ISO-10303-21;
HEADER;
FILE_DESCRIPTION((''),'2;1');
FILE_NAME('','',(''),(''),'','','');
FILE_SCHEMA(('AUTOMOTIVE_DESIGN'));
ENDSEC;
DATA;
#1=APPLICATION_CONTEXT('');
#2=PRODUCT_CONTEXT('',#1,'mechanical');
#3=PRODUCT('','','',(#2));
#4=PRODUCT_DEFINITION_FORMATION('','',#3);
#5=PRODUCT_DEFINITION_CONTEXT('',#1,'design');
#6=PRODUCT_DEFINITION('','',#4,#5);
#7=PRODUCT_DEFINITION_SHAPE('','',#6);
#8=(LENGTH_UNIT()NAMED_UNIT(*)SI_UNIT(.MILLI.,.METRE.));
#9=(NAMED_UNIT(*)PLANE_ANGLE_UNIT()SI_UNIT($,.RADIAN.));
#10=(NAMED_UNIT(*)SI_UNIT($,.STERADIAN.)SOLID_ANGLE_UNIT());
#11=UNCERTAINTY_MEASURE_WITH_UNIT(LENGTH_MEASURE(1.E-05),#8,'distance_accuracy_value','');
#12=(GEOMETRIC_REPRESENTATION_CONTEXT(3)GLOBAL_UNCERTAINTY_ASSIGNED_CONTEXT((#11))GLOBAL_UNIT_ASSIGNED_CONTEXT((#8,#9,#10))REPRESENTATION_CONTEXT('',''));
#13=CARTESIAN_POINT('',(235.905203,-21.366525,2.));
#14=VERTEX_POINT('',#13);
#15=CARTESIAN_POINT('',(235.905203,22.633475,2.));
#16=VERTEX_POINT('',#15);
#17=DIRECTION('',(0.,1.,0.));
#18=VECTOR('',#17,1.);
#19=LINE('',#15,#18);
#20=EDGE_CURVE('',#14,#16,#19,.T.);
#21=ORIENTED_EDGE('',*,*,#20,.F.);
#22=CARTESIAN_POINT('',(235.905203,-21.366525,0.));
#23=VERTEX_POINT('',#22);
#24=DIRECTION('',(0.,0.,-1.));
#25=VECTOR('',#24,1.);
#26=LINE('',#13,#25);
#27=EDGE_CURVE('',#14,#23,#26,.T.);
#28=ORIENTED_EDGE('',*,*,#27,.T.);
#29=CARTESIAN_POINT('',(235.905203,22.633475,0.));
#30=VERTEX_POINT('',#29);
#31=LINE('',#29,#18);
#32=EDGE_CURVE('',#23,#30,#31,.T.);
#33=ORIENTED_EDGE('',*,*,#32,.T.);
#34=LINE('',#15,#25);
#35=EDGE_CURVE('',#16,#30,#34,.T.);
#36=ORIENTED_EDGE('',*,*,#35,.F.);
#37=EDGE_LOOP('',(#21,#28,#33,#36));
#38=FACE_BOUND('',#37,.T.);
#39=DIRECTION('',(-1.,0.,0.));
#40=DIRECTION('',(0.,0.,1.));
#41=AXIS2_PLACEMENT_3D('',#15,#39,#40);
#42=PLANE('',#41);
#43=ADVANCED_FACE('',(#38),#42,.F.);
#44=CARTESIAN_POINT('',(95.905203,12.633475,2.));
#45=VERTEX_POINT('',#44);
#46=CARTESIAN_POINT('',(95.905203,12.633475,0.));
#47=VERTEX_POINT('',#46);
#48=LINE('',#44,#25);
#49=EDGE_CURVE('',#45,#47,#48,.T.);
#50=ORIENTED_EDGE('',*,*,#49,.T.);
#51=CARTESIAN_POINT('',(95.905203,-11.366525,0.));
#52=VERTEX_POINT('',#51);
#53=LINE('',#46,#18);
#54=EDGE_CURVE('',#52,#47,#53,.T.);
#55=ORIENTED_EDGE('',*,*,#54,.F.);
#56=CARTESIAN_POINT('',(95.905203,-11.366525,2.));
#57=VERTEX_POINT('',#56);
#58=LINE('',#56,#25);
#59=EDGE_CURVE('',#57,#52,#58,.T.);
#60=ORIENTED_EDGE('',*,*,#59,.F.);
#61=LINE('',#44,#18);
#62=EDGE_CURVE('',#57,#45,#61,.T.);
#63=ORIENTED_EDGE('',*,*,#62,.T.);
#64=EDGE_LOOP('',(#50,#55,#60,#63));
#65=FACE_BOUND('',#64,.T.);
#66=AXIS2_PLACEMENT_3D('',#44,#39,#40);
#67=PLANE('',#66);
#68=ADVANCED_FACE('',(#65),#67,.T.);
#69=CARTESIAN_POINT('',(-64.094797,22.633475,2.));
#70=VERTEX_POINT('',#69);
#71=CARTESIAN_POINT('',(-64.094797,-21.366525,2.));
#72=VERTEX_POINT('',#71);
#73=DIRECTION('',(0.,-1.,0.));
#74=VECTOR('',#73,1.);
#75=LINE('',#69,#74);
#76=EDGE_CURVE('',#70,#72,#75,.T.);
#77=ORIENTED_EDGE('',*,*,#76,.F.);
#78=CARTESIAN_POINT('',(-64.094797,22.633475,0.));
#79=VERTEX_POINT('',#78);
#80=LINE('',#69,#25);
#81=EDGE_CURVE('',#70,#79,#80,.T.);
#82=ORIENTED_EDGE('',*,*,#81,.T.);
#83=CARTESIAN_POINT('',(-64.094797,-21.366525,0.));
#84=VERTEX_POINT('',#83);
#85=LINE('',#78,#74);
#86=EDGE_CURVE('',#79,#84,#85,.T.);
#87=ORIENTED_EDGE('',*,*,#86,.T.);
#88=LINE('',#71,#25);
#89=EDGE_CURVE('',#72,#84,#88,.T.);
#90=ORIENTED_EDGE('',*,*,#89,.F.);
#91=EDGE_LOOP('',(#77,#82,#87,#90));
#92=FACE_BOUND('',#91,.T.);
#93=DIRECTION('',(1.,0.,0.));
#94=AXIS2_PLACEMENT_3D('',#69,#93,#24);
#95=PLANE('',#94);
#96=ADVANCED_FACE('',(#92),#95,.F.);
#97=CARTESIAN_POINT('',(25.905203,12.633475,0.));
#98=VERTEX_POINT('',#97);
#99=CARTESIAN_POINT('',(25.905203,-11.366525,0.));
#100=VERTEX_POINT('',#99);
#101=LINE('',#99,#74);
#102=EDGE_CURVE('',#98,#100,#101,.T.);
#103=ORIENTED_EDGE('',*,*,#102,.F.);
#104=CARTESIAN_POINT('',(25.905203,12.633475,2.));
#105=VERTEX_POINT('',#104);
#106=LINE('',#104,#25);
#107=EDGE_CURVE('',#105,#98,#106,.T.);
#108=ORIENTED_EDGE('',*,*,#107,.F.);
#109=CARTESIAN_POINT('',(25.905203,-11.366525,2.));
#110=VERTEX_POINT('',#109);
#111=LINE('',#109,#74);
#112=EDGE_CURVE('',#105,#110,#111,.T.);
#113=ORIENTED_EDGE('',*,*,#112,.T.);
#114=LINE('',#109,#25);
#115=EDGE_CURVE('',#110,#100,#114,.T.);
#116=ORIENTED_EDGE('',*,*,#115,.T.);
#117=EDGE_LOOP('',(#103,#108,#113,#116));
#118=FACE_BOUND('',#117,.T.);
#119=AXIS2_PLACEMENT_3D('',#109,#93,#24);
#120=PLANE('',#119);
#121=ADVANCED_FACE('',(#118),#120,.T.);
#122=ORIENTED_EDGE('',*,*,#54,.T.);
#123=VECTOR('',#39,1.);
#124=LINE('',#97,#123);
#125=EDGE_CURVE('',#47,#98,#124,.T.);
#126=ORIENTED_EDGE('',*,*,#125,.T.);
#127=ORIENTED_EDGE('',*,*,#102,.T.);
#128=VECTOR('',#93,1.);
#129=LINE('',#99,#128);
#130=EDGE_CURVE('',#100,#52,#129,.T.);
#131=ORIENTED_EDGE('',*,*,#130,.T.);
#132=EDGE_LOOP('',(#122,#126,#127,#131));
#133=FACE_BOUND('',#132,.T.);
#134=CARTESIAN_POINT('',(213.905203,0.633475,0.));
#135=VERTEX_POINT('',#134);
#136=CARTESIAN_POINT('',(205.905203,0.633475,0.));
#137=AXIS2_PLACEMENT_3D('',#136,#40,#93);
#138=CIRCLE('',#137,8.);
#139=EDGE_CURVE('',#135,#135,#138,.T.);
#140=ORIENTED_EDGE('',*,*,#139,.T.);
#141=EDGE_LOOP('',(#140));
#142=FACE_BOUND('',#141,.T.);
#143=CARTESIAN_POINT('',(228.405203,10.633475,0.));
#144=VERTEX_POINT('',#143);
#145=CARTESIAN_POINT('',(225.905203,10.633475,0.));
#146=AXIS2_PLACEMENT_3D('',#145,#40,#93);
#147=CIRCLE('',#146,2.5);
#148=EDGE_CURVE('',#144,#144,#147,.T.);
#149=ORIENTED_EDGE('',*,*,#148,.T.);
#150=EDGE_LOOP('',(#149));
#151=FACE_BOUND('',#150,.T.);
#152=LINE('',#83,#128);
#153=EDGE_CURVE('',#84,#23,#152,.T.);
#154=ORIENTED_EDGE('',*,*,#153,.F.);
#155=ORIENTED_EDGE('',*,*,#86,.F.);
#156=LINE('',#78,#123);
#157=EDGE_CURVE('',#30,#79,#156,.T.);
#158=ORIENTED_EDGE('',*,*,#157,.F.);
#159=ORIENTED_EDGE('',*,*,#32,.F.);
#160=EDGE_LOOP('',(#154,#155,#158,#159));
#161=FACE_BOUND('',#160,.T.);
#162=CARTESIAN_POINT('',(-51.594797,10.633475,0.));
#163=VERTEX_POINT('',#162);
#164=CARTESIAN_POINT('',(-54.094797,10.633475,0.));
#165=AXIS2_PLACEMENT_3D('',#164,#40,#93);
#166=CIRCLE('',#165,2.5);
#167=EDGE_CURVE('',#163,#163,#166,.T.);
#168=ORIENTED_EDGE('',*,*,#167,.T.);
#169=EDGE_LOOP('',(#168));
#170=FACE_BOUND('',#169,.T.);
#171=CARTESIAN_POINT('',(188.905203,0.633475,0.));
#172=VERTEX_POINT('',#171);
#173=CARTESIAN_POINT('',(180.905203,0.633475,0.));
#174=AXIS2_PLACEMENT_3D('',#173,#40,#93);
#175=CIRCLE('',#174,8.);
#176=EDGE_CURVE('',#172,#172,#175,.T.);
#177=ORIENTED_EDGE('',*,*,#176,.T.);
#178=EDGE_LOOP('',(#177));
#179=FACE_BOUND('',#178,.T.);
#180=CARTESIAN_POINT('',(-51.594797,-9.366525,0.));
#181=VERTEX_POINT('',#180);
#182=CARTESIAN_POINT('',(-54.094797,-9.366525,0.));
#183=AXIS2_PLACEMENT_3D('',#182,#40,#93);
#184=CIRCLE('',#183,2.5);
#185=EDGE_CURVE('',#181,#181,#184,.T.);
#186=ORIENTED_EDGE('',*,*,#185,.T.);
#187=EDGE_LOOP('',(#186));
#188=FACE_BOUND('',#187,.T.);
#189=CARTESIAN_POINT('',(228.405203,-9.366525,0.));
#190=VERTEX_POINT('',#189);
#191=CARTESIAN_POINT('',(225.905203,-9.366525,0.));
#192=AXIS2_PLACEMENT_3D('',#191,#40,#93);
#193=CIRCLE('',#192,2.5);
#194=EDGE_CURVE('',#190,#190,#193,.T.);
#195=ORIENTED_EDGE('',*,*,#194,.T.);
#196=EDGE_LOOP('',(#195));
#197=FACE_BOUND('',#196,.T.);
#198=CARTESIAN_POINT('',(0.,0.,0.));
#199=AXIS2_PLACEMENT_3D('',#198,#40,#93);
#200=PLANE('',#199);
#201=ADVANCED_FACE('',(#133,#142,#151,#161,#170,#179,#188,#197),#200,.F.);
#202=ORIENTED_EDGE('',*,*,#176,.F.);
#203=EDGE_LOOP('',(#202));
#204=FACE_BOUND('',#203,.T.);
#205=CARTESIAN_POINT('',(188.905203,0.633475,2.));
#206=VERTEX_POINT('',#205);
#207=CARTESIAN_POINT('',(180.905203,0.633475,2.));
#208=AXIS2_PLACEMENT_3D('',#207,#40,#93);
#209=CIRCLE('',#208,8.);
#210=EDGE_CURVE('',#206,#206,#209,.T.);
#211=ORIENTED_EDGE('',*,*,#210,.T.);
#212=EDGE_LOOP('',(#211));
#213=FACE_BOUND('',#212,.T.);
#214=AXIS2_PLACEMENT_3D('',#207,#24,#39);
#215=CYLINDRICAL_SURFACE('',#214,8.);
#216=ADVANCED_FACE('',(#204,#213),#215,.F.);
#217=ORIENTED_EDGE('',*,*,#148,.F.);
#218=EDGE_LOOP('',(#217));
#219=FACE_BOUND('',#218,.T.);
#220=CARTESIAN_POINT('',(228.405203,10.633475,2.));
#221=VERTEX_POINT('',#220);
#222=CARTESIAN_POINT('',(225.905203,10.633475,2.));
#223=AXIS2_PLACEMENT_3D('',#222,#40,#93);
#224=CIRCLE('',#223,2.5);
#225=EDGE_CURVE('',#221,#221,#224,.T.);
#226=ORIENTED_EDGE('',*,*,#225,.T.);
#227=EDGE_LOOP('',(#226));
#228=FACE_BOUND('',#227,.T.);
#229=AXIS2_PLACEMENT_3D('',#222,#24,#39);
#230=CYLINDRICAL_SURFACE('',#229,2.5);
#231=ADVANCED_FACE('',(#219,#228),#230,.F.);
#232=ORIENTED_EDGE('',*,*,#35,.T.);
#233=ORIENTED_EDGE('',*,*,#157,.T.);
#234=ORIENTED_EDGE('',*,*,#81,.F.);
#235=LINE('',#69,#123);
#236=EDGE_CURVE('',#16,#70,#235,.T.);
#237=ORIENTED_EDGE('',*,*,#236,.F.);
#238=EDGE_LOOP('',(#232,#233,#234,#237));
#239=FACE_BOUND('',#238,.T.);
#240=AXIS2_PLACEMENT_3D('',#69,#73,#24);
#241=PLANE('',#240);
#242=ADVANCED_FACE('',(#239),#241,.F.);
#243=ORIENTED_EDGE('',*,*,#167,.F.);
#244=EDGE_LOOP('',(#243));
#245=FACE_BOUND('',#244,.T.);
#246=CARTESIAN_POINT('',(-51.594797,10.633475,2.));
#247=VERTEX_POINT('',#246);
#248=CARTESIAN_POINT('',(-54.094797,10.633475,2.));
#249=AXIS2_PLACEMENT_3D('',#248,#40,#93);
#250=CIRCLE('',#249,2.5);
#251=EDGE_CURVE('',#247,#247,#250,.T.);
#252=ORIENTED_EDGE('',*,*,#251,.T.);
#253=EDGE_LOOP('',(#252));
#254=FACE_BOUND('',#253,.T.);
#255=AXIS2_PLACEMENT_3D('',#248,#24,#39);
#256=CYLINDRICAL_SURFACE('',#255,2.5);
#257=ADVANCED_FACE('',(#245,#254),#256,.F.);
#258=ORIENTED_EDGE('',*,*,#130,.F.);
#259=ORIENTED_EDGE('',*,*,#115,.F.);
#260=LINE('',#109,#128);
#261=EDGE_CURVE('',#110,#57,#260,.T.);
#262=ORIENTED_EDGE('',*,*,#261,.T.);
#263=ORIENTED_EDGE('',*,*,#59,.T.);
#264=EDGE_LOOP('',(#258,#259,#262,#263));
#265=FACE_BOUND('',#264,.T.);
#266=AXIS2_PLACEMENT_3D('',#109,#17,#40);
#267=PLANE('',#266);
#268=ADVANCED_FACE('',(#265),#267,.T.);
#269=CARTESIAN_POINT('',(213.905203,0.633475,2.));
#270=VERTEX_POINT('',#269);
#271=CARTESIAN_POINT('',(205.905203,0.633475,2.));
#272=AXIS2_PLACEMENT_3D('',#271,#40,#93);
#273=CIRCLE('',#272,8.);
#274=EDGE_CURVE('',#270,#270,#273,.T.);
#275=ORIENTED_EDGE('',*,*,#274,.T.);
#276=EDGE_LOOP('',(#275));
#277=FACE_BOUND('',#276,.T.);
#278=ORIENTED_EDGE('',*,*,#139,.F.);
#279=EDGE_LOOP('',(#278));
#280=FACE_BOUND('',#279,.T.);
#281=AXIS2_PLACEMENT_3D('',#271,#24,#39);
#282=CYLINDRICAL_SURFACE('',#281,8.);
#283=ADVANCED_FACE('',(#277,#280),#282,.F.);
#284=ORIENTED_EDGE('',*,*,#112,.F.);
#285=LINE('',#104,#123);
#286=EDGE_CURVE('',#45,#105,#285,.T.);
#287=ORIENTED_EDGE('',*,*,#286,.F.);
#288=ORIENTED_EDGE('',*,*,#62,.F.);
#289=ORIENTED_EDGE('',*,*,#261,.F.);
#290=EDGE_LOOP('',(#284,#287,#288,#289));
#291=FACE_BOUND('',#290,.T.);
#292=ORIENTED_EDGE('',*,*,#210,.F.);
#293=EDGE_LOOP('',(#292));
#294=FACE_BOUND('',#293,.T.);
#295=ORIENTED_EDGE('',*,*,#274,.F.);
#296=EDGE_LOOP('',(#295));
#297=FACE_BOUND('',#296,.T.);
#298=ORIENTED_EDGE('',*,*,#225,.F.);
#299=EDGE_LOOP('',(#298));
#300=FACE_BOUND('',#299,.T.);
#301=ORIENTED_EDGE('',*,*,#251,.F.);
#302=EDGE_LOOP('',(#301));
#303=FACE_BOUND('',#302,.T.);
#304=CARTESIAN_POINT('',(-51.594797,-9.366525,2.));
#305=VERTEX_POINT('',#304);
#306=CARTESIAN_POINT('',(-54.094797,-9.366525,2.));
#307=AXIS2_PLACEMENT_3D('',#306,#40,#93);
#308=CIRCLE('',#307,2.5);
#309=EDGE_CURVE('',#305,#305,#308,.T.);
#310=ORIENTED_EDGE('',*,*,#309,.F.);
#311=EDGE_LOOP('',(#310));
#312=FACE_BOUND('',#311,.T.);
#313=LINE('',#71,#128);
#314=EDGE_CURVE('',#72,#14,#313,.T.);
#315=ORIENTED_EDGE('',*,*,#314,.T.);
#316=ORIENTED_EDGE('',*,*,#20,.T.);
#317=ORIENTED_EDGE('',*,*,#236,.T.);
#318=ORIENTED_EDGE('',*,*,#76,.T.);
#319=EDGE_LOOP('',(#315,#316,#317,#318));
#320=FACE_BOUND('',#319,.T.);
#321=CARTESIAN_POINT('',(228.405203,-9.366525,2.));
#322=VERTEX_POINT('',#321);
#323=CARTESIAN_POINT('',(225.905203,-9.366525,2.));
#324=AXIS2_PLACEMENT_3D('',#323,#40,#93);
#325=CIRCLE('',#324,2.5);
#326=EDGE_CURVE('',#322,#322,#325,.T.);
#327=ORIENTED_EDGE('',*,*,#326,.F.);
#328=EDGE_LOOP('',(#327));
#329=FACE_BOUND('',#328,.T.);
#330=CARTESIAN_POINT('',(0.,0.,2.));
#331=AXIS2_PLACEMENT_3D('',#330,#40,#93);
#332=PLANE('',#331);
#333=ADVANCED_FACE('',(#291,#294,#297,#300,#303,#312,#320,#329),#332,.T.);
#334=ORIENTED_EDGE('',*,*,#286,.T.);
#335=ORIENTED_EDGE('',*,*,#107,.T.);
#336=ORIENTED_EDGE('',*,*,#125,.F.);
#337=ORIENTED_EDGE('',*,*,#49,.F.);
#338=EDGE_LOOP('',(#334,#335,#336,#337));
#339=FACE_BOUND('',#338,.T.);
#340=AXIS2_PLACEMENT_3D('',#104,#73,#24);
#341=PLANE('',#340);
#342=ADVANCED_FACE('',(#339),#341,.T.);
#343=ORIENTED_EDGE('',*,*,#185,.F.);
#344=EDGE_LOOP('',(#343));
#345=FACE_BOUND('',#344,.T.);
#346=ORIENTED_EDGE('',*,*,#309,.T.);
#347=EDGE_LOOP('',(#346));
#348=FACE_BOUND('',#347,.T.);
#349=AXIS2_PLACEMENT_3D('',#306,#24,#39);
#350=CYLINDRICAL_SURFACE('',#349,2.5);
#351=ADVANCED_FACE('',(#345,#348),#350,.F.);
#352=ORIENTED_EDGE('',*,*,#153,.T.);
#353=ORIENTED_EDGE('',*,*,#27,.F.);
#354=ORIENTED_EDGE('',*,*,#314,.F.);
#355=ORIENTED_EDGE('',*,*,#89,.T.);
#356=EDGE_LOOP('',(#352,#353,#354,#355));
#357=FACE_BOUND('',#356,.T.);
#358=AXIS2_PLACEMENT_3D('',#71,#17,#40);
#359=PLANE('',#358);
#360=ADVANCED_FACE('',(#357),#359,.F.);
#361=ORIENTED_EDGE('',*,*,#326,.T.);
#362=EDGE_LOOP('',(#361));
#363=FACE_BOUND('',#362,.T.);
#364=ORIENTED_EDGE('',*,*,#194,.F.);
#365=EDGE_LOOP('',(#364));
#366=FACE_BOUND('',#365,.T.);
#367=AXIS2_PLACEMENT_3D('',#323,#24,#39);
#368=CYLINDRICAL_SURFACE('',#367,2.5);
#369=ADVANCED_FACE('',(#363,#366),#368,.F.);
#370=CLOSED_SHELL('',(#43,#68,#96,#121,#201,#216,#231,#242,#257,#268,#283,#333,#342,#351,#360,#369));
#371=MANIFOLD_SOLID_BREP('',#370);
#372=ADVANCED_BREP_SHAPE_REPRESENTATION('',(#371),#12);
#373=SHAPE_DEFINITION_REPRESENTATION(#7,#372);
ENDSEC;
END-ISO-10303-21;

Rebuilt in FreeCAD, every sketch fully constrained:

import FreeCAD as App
import Part
import Sketcher
from FreeCAD import Vector


def add_polygon(sketch, points):
    """Adds a closed chain of lines whose ends are joined by coincident constraints."""
    first, n = sketch.GeometryCount, len(points)
    for a, b in zip(points, points[1:] + points[:1]):
        sketch.addGeometry(Part.LineSegment(App.Vector(*a, 0), App.Vector(*b, 0)), False)
    for i in range(n):
        sketch.addConstraint(Sketcher.Constraint("Coincident", first + i, 2, first + (i + 1) % n, 1))

doc = App.newDocument("Part")
params = doc.addObject("Spreadsheet::Sheet", "Params")
for row, (alias, value) in enumerate([
    ("sketch1_diameter", "5 mm"),
    ("sketch1_diameter2", "16 mm"),
    ("sketch1_width", "300 mm"),
    ("sketch1_width2", "70 mm"),
    ("sketch1_height", "44 mm"),
    ("pad1_length", "2 mm"),
], start=1):
    params.set(f"A{row}", alias)
    params.set(f"B{row}", "=" + value)
    params.setAlias(f"B{row}", alias)

body = doc.addObject("PartDesign::Body", "Body")

# Sketch on XY plane
sketch1 = doc.addObject("Sketcher::SketchObject", "Sketch")
body.addObject(sketch1)
sketch1.AttachmentSupport = (doc.XY_Plane, [""])
sketch1.MapMode = "FlatFace"
add_polygon(sketch1, [(-64.1, 22.6), (-64.1, -21.4), (235.9, -21.4), (235.9, 22.6)])  # lines 0-3
sketch1.addGeometry(Part.Circle(Vector(-54.1, -9.4, 0), Vector(0, 0, 1), 2.5), False)  # 4
sketch1.addGeometry(Part.Circle(Vector(225.9, -9.4, 0), Vector(0, 0, 1), 2.5), False)  # 5
add_polygon(sketch1, [(95.9, -11.4), (25.9, -11.4), (25.9, 12.6), (95.9, 12.6)])  # lines 6-9
sketch1.addGeometry(Part.Circle(Vector(-54.1, 10.6, 0), Vector(0, 0, 1), 2.5), False)  # 10
sketch1.addGeometry(Part.Circle(Vector(180.9, 0.6, 0), Vector(0, 0, 1), 8), False)  # 11
sketch1.addGeometry(Part.Circle(Vector(205.9, 0.6, 0), Vector(0, 0, 1), 8), False)  # 12
sketch1.addGeometry(Part.Circle(Vector(225.9, 10.6, 0), Vector(0, 0, 1), 2.5), False)  # 13
sketch1.addConstraint([
    Sketcher.Constraint("Vertical", 0),
    Sketcher.Constraint("Horizontal", 1),
    Sketcher.Constraint("Vertical", 2),
    Sketcher.Constraint("Horizontal", 3),
    Sketcher.Constraint("Horizontal", 6),
    Sketcher.Constraint("Vertical", 7),
    Sketcher.Constraint("Horizontal", 8),
    Sketcher.Constraint("Vertical", 9),
    Sketcher.Constraint("Equal", 4, 5),
    Sketcher.Constraint("Equal", 5, 10),
    Sketcher.Constraint("Equal", 11, 12),
    Sketcher.Constraint("Equal", 10, 13),
    Sketcher.Constraint("Horizontal", 4, 3, 5, 3),
    Sketcher.Constraint("Horizontal", 11, 3, 12, 3),
    Sketcher.Constraint("Horizontal", 10, 3, 13, 3),
    Sketcher.Constraint("Vertical", 4, 3, 10, 3),
    Sketcher.Constraint("Vertical", 5, 3, 13, 3),
    Sketcher.Constraint("Diameter", 4, 5.0),
    Sketcher.Constraint("Diameter", 11, 16.0),
    Sketcher.Constraint("DistanceX", 1, 1, 1, 2, 300.0),
    Sketcher.Constraint("DistanceX", 6, 2, 6, 1, 70.0),
    Sketcher.Constraint("DistanceY", 0, 2, 0, 1, 44.0),
    Sketcher.Constraint("DistanceY", 7, 1, 7, 2, 24.0),
    Sketcher.Constraint("DistanceX", 4, 3, 5, 3, 280.0),
    Sketcher.Constraint("DistanceY", 4, 3, 10, 3, 20.0),
    Sketcher.Constraint("DistanceX", 11, 3, 5, 3, 45.0),
    Sketcher.Constraint("DistanceY", 5, 3, 11, 3, 10.0),
    Sketcher.Constraint("DistanceX", 12, 3, 5, 3, 20.0),
    Sketcher.Constraint("DistanceX", 0, 2, 4, 3, 10.0),
    Sketcher.Constraint("DistanceY", 0, 2, 4, 3, 12.0),
    Sketcher.Constraint("DistanceX", 4, 3, 6, 2, 80.0),
    Sketcher.Constraint("DistanceY", 6, 2, 4, 3, 2.0),
    Sketcher.Constraint("DistanceX", 4, 3, -1, 1, 54.094797),
    Sketcher.Constraint("DistanceY", 4, 3, -1, 1, 9.366525),
])
sketch1.setExpression("Constraints[25]", "Params.sketch1_diameter")
sketch1.setExpression("Constraints[26]", "Params.sketch1_diameter2")
sketch1.setExpression("Constraints[27]", "Params.sketch1_width")
sketch1.setExpression("Constraints[28]", "Params.sketch1_width2")
sketch1.setExpression("Constraints[29]", "Params.sketch1_height")
pad1 = doc.addObject("PartDesign::Pad", "Pad")
body.addObject(pad1)
pad1.Profile = sketch1
pad1.setExpression("Length", "Params.pad1_length")

doc.recompute()
